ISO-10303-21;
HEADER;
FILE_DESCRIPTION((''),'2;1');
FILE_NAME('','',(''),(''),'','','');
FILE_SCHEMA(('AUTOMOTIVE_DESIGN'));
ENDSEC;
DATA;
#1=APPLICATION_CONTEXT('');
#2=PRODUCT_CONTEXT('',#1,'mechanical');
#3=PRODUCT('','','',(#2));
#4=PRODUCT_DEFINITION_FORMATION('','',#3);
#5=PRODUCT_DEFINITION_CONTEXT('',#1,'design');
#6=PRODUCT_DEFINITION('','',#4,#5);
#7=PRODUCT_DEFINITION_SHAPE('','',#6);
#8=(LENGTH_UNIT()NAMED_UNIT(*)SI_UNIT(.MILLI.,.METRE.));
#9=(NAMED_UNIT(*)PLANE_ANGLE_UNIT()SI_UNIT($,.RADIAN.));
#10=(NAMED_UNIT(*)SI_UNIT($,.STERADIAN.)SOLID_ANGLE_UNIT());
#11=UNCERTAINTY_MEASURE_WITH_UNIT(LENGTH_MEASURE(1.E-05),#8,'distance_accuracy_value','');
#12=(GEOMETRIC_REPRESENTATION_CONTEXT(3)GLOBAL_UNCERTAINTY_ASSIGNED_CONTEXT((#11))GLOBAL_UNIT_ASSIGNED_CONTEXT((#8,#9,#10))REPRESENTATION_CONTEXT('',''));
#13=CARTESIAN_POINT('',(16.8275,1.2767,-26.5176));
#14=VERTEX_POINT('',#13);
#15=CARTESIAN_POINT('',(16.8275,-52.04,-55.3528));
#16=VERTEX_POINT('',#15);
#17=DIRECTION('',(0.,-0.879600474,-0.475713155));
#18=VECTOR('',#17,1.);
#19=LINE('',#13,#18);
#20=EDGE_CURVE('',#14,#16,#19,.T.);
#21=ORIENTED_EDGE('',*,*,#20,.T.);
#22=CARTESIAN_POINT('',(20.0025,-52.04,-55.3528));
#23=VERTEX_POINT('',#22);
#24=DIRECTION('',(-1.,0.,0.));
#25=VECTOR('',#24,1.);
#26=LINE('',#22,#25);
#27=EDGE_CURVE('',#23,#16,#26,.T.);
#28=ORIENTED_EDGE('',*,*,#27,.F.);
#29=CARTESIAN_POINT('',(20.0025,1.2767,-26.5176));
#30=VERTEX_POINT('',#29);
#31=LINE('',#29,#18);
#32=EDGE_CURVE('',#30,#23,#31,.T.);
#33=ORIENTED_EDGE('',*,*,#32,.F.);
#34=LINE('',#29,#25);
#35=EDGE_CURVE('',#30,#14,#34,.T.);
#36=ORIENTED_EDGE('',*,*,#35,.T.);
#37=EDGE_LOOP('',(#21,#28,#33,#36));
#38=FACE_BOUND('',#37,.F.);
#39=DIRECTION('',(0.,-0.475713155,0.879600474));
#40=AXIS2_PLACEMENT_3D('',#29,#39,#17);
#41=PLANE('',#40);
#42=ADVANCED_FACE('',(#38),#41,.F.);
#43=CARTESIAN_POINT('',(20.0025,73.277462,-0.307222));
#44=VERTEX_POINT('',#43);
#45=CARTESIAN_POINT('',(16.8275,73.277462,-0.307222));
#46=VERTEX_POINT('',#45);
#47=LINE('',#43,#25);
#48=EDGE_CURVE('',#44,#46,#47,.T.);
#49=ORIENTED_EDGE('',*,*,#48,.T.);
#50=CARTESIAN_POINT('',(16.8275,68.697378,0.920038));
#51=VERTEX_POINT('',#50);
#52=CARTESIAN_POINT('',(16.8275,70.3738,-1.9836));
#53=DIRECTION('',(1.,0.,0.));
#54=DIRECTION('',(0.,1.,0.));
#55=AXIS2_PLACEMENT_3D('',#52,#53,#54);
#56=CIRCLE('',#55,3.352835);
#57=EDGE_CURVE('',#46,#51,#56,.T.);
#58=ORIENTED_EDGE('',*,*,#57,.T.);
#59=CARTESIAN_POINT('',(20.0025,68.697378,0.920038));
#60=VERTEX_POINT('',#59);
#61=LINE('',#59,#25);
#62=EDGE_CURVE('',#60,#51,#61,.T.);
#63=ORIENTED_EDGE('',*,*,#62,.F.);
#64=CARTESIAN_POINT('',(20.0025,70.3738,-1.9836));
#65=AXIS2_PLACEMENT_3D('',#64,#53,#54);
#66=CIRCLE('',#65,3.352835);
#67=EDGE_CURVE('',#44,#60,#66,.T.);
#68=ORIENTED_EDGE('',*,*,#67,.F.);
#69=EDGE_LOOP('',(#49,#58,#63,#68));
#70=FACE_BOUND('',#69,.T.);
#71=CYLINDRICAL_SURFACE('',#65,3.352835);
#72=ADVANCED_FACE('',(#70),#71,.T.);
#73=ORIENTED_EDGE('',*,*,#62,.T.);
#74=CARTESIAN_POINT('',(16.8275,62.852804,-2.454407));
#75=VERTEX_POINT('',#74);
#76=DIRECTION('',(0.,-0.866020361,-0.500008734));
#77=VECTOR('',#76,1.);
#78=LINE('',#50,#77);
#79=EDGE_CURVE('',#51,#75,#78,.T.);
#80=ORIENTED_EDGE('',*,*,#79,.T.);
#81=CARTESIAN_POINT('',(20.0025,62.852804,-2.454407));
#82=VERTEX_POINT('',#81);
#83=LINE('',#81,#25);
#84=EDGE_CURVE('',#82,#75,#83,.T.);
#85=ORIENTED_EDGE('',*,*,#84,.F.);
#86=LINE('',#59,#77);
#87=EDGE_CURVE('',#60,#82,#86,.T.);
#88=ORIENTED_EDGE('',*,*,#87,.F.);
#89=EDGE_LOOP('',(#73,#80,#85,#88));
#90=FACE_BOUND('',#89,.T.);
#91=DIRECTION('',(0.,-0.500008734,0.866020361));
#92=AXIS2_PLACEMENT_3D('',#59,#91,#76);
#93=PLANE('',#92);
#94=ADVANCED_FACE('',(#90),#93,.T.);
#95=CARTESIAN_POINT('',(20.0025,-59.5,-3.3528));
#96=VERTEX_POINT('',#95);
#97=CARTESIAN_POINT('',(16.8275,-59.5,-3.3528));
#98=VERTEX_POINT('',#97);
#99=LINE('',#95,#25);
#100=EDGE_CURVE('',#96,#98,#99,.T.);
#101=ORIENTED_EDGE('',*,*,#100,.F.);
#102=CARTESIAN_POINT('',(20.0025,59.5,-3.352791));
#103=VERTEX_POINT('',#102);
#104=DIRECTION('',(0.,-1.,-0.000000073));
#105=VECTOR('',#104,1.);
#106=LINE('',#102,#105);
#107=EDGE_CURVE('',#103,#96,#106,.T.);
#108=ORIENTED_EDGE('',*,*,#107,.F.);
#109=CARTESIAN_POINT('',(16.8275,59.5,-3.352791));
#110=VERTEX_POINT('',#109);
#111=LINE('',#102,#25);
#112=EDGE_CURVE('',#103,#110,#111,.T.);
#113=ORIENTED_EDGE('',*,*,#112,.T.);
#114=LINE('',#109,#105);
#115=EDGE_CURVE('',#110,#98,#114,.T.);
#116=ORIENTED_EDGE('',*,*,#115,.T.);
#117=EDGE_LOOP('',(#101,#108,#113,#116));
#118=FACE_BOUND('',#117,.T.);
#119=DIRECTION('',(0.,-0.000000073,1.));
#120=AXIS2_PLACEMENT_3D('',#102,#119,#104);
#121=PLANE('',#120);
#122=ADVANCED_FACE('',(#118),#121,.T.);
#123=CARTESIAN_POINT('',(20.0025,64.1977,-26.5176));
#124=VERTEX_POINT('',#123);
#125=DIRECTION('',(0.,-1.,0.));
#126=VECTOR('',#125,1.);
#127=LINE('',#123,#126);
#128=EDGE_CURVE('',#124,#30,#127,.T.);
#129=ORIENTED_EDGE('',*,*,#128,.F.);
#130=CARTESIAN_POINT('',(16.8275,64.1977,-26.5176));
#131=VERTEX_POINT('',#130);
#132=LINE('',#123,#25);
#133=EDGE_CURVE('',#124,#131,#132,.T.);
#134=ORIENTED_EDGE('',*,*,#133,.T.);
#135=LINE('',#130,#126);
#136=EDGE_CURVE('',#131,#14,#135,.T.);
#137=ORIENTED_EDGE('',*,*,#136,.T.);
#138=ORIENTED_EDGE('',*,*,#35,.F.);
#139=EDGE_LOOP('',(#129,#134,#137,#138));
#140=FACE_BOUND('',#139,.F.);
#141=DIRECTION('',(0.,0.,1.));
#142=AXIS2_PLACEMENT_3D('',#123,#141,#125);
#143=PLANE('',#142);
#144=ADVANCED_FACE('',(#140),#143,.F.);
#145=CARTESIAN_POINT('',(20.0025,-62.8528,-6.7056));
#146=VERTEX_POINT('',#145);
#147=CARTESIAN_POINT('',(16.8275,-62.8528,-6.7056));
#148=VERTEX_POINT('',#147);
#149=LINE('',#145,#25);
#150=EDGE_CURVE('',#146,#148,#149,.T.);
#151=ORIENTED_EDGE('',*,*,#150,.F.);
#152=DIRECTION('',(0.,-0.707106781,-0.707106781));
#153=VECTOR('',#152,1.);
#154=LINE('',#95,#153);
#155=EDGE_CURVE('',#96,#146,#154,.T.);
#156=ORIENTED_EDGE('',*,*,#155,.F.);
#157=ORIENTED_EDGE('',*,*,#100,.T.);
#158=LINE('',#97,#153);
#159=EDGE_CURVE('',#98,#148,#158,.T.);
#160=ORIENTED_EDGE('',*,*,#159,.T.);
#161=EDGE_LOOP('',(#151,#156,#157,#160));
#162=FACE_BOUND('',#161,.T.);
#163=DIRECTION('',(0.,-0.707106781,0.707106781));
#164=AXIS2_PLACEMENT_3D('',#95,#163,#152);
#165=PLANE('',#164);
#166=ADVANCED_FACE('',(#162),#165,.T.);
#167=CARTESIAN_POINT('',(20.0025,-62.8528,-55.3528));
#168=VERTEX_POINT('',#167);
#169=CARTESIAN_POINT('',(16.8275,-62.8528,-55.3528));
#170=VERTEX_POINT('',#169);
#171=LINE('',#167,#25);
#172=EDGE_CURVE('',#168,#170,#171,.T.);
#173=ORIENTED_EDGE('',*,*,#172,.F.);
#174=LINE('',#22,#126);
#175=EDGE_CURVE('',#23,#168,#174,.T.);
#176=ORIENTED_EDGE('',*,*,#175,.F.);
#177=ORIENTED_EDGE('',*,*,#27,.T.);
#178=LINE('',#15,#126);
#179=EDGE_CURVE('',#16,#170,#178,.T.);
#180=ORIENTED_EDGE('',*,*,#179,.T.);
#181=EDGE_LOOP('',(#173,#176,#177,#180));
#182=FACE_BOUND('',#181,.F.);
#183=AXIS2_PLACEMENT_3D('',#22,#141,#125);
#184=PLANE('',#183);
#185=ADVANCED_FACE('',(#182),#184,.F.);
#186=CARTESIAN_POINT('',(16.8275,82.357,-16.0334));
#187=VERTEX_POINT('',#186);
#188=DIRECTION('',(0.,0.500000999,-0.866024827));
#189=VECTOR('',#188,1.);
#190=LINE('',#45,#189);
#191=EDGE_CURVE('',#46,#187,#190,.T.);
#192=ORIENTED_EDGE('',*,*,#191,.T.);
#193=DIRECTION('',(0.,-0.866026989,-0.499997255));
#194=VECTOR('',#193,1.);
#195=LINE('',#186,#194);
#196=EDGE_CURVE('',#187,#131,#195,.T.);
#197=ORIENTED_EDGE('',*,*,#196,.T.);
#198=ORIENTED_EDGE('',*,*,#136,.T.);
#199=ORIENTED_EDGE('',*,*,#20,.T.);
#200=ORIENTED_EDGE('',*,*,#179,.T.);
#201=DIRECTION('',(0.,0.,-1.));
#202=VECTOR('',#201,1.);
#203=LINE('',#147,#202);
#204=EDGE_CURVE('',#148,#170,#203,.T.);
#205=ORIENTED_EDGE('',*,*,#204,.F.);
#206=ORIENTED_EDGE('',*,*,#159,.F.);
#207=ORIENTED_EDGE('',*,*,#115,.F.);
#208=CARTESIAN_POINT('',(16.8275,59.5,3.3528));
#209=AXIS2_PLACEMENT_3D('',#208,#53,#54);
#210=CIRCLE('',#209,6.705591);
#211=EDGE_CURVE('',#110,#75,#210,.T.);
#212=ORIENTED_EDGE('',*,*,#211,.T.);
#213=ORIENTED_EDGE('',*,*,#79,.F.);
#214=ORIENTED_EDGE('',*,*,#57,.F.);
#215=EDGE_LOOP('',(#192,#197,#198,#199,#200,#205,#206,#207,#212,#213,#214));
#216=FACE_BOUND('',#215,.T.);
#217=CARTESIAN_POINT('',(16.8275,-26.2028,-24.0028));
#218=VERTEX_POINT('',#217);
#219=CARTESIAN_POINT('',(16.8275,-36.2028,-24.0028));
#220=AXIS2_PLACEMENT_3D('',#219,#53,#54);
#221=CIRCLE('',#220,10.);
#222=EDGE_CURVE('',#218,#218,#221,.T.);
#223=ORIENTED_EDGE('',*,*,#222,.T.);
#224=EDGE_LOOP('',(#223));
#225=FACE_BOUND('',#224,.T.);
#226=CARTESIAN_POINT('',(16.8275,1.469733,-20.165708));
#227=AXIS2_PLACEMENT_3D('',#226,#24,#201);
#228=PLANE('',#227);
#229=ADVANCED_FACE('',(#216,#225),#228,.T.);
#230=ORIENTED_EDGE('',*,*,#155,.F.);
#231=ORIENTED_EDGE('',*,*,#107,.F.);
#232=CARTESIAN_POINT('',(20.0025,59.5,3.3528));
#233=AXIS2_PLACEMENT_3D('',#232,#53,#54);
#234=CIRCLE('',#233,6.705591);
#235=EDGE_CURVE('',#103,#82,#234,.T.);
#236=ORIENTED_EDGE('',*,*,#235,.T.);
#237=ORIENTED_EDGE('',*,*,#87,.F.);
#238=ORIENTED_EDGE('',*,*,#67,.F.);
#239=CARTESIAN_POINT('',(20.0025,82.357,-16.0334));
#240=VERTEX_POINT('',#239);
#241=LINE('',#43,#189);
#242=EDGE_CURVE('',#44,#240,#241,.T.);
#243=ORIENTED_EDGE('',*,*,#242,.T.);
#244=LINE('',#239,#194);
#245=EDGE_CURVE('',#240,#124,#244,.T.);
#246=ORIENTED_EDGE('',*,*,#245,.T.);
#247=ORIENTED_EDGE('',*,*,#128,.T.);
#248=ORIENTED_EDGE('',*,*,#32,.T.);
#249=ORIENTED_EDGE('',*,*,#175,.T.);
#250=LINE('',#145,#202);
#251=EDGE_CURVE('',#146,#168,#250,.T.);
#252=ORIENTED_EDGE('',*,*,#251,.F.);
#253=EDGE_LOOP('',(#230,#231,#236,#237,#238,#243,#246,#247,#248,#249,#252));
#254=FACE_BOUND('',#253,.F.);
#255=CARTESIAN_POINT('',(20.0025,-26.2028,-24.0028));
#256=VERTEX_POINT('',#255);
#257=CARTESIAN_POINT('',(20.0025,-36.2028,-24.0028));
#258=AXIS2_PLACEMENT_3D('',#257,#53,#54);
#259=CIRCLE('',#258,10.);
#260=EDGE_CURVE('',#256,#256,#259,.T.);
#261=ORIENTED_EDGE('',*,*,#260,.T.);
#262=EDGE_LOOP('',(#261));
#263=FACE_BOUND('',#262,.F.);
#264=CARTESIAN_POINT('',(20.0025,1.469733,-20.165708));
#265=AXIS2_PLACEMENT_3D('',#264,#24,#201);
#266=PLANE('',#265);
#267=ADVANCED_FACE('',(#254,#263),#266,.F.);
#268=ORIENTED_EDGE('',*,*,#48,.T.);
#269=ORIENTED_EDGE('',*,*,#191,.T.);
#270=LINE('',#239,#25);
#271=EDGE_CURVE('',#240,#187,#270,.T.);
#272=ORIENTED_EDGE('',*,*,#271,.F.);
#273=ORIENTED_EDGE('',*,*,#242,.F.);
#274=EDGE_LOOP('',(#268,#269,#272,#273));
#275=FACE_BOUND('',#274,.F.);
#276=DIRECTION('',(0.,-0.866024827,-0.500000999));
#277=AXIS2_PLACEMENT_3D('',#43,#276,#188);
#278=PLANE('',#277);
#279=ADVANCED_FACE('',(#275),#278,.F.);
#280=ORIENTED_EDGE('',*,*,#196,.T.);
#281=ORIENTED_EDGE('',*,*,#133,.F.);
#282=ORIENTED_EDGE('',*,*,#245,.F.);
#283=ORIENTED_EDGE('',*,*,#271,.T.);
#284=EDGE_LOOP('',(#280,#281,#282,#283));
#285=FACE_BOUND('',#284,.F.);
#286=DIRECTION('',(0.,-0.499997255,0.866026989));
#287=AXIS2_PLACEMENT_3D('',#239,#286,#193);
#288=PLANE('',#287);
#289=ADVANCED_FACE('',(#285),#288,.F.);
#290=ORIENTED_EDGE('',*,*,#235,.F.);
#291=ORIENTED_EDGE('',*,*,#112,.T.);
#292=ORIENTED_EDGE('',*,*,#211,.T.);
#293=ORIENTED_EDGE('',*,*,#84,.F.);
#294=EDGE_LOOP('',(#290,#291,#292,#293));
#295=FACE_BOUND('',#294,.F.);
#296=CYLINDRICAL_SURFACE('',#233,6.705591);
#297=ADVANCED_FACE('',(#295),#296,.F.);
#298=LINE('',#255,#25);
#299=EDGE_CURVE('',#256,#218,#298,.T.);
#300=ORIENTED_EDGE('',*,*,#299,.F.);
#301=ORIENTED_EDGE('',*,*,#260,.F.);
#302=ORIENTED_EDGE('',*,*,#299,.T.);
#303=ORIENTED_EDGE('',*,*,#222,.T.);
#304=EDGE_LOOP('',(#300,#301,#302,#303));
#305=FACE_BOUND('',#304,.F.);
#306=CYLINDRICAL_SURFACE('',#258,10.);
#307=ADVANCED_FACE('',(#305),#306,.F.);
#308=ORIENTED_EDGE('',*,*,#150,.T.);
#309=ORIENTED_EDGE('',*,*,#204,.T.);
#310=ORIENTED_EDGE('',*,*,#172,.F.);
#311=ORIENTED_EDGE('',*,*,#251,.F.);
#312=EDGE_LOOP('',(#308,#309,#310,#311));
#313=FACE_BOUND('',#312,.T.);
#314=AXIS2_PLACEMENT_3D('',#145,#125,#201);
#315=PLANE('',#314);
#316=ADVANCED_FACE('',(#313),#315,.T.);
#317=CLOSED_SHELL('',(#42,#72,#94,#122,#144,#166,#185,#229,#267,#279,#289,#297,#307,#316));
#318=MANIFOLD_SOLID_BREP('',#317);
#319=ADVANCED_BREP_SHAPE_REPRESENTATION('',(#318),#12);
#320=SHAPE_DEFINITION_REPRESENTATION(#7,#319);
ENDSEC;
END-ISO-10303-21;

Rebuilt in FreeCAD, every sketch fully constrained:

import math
import FreeCAD as App
import Part
import Sketcher
Q = App.Units.Quantity

doc = App.newDocument("Part")
body = doc.addObject("PartDesign::Body", "Body")

# Sketch on YZ plane
sketch1 = doc.addObject("Sketcher::SketchObject", "Sketch")
body.addObject(sketch1)
sketch1.AttachmentSupport = (doc.YZ_Plane, [""])
sketch1.MapMode = "FlatFace"
sketch1.AttachmentOffset = App.Placement(App.Vector(0, 0, 0.7875 * 25.4), App.Rotation())
sketch1.addGeometry([
    Part.LineSegment(App.Vector(64.2, -26.5, 0), App.Vector(82.4, -16, 0)),  # 0
    Part.LineSegment(App.Vector(82.4, -16, 0), App.Vector(73.3, -0.3, 0)),  # 1
    Part.ArcOfCircle(Part.Circle(App.Vector(70.4, -2, 0), App.Vector(0, 0, 1), 3.4), math.radians(30), math.radians(120)),  # 2
    Part.LineSegment(App.Vector(68.7, 0.9, 0), App.Vector(62.9, -2.5, 0)),  # 3
    Part.ArcOfCircle(Part.Circle(App.Vector(59.5, 3.4, 0), App.Vector(0, 0, 1), 6.7), math.radians(-90), math.radians(-60)),  # 4
    Part.LineSegment(App.Vector(59.5, -3.4, 0), App.Vector(-59.5, -3.4, 0)),  # 5
    Part.LineSegment(App.Vector(-59.5, -3.4, 0), App.Vector(-62.9, -6.7, 0)),  # 6
    Part.LineSegment(App.Vector(-62.9, -6.7, 0), App.Vector(-62.9, -55.4, 0)),  # 7
    Part.LineSegment(App.Vector(-62.9, -55.4, 0), App.Vector(-52, -55.4, 0)),  # 8
    Part.LineSegment(App.Vector(-52, -55.4, 0), App.Vector(1.3, -26.5, 0)),  # 9
    Part.LineSegment(App.Vector(1.3, -26.5, 0), App.Vector(64.2, -26.5, 0)),  # 10
    Part.Circle(App.Vector(-36.2, -24, 0), App.Vector(0, 0, 1), 10),  # 11
], False)
sketch1.addConstraint([
    Sketcher.Constraint("Coincident", 0, 2, 1, 1),
    Sketcher.Constraint("Tangent", 1, 2, 2, 1),
    Sketcher.Constraint("Tangent", 2, 2, 3, 1),
    Sketcher.Constraint("Tangent", 3, 2, 4, 2),
    Sketcher.Constraint("Tangent", 4, 1, 5, 1),
    Sketcher.Constraint("Coincident", 5, 2, 6, 1),
    Sketcher.Constraint("Coincident", 6, 2, 7, 1),
    Sketcher.Constraint("Coincident", 7, 2, 8, 1),
    Sketcher.Constraint("Coincident", 8, 2, 9, 1),
    Sketcher.Constraint("Coincident", 9, 2, 10, 1),
    Sketcher.Constraint("Coincident", 10, 2, 0, 1),
    Sketcher.Constraint("Horizontal", 5),
    Sketcher.Constraint("Vertical", 7),
    Sketcher.Constraint("Horizontal", 8),
    Sketcher.Constraint("Horizontal", 10),
    Sketcher.Constraint("Perpendicular", 0, 1),
    Sketcher.Constraint("Perpendicular", 1, 3),
    Sketcher.Constraint("Angle", 0, Q("29.9998 deg")),
    Sketcher.Constraint("Angle", 6, Q("-135 deg")),
    Sketcher.Constraint("Radius", 2, Q("0.132 in")),
    Sketcher.Constraint("Radius", 4, Q("0.264 in")),
    Sketcher.Constraint("Diameter", 11, Q("0.7874 in")),
    Sketcher.Constraint("DistanceX", 8, 1, 8, 2, Q("0.4257 in")),
    Sketcher.Constraint("DistanceX", 10, 1, 10, 2, Q("2.4772 in")),
    Sketcher.Constraint("DistanceY", -1, 1, 4, 3, Q("0.132 in")),
    Sketcher.Constraint("DistanceY", 11, 3, -1, 1, Q("0.945 in")),
    Sketcher.Constraint("DistanceY", 6, 2, -1, 1, Q("0.264 in")),
    Sketcher.Constraint("DistanceY", 9, 2, -1, 1, Q("1.044 in")),
    Sketcher.Constraint("Distance", 3, Q("0.2657 in")),
    Sketcher.Constraint("Distance", 9, Q("2.3864 in")),
    Sketcher.Constraint("DistanceX", 5, 2, 5, 1, Q("119 mm")),
    Sketcher.Constraint("DistanceY", 7, 2, 7, 1, Q("48.6472 mm")),
    Sketcher.Constraint("DistanceX", 11, 3, -1, 1, Q("1.4253 in")),
    Sketcher.Constraint("DistanceX", -1, 1, 0, 2, Q("3.2424 in")),
])
pad1 = doc.addObject("PartDesign::Pad", "Pad")
body.addObject(pad1)
pad1.Profile = sketch1
pad1.Length = Q("0.125 in")
pad1.Reversed = True

doc.recompute()
